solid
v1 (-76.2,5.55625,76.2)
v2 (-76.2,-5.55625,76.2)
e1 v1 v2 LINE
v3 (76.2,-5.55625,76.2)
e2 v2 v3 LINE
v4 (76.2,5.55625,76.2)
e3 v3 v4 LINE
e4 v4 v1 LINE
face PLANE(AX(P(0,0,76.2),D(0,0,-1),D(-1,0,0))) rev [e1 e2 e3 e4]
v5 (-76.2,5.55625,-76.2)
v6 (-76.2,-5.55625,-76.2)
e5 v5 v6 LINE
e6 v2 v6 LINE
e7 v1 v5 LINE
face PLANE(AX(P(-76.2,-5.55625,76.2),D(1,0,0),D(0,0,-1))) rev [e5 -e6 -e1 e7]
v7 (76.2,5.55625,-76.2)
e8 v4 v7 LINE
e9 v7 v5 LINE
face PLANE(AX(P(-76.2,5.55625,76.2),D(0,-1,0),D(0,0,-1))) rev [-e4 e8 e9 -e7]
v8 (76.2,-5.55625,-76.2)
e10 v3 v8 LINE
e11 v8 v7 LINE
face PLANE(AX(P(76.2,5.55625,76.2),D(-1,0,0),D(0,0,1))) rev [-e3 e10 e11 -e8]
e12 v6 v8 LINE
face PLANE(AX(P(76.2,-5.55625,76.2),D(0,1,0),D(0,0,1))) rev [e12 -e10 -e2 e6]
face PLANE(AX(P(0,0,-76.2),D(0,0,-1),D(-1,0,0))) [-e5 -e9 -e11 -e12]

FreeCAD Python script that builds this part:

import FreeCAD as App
import Part
import Sketcher
Q = App.Units.Quantity

doc = App.newDocument("Part")
body = doc.addObject("PartDesign::Body", "Body")

# Sketch on XY plane
sketch1 = body.newObject("Sketcher::SketchObject", "Sketch")
sketch1.AttachmentSupport = (doc.getObject("XY_Plane"), [""])
sketch1.MapMode = "FlatFace"
sketch1.addGeometry(Part.LineSegment(App.Vector(-76, 6, 0), App.Vector(-76, -6, 0)), False)
sketch1.addGeometry(Part.LineSegment(App.Vector(-76, -6, 0), App.Vector(76, -6, 0)), False)
sketch1.addGeometry(Part.LineSegment(App.Vector(76, -6, 0), App.Vector(76, 6, 0)), False)
sketch1.addGeometry(Part.LineSegment(App.Vector(76, 6, 0), App.Vector(-76, 6, 0)), False)
sketch1.addConstraint(Sketcher.Constraint("Coincident", 0, 2, 1, 1))
sketch1.addConstraint(Sketcher.Constraint("Coincident", 1, 2, 2, 1))
sketch1.addConstraint(Sketcher.Constraint("Coincident", 2, 2, 3, 1))
sketch1.addConstraint(Sketcher.Constraint("Coincident", 3, 2, 0, 1))
sketch1.addConstraint(Sketcher.Constraint("Vertical", 0))
sketch1.addConstraint(Sketcher.Constraint("Horizontal", 1))
sketch1.addConstraint(Sketcher.Constraint("Vertical", 2))
sketch1.addConstraint(Sketcher.Constraint("Horizontal", 3))
sketch1.addConstraint(Sketcher.Constraint("Symmetric", 0, 2, 2, 2, -1, 1))
sketch1.addConstraint(Sketcher.Constraint("DistanceX", 1, 1, 1, 2, Q("6 in")))
sketch1.addConstraint(Sketcher.Constraint("DistanceY", 0, 2, 0, 1, Q("0.4375 in")))
pad1 = body.newObject("PartDesign::Pad", "Pad")
pad1.Profile = sketch1
pad1.Length = Q("6 in")
pad1.Midplane = True

doc.recompute()
